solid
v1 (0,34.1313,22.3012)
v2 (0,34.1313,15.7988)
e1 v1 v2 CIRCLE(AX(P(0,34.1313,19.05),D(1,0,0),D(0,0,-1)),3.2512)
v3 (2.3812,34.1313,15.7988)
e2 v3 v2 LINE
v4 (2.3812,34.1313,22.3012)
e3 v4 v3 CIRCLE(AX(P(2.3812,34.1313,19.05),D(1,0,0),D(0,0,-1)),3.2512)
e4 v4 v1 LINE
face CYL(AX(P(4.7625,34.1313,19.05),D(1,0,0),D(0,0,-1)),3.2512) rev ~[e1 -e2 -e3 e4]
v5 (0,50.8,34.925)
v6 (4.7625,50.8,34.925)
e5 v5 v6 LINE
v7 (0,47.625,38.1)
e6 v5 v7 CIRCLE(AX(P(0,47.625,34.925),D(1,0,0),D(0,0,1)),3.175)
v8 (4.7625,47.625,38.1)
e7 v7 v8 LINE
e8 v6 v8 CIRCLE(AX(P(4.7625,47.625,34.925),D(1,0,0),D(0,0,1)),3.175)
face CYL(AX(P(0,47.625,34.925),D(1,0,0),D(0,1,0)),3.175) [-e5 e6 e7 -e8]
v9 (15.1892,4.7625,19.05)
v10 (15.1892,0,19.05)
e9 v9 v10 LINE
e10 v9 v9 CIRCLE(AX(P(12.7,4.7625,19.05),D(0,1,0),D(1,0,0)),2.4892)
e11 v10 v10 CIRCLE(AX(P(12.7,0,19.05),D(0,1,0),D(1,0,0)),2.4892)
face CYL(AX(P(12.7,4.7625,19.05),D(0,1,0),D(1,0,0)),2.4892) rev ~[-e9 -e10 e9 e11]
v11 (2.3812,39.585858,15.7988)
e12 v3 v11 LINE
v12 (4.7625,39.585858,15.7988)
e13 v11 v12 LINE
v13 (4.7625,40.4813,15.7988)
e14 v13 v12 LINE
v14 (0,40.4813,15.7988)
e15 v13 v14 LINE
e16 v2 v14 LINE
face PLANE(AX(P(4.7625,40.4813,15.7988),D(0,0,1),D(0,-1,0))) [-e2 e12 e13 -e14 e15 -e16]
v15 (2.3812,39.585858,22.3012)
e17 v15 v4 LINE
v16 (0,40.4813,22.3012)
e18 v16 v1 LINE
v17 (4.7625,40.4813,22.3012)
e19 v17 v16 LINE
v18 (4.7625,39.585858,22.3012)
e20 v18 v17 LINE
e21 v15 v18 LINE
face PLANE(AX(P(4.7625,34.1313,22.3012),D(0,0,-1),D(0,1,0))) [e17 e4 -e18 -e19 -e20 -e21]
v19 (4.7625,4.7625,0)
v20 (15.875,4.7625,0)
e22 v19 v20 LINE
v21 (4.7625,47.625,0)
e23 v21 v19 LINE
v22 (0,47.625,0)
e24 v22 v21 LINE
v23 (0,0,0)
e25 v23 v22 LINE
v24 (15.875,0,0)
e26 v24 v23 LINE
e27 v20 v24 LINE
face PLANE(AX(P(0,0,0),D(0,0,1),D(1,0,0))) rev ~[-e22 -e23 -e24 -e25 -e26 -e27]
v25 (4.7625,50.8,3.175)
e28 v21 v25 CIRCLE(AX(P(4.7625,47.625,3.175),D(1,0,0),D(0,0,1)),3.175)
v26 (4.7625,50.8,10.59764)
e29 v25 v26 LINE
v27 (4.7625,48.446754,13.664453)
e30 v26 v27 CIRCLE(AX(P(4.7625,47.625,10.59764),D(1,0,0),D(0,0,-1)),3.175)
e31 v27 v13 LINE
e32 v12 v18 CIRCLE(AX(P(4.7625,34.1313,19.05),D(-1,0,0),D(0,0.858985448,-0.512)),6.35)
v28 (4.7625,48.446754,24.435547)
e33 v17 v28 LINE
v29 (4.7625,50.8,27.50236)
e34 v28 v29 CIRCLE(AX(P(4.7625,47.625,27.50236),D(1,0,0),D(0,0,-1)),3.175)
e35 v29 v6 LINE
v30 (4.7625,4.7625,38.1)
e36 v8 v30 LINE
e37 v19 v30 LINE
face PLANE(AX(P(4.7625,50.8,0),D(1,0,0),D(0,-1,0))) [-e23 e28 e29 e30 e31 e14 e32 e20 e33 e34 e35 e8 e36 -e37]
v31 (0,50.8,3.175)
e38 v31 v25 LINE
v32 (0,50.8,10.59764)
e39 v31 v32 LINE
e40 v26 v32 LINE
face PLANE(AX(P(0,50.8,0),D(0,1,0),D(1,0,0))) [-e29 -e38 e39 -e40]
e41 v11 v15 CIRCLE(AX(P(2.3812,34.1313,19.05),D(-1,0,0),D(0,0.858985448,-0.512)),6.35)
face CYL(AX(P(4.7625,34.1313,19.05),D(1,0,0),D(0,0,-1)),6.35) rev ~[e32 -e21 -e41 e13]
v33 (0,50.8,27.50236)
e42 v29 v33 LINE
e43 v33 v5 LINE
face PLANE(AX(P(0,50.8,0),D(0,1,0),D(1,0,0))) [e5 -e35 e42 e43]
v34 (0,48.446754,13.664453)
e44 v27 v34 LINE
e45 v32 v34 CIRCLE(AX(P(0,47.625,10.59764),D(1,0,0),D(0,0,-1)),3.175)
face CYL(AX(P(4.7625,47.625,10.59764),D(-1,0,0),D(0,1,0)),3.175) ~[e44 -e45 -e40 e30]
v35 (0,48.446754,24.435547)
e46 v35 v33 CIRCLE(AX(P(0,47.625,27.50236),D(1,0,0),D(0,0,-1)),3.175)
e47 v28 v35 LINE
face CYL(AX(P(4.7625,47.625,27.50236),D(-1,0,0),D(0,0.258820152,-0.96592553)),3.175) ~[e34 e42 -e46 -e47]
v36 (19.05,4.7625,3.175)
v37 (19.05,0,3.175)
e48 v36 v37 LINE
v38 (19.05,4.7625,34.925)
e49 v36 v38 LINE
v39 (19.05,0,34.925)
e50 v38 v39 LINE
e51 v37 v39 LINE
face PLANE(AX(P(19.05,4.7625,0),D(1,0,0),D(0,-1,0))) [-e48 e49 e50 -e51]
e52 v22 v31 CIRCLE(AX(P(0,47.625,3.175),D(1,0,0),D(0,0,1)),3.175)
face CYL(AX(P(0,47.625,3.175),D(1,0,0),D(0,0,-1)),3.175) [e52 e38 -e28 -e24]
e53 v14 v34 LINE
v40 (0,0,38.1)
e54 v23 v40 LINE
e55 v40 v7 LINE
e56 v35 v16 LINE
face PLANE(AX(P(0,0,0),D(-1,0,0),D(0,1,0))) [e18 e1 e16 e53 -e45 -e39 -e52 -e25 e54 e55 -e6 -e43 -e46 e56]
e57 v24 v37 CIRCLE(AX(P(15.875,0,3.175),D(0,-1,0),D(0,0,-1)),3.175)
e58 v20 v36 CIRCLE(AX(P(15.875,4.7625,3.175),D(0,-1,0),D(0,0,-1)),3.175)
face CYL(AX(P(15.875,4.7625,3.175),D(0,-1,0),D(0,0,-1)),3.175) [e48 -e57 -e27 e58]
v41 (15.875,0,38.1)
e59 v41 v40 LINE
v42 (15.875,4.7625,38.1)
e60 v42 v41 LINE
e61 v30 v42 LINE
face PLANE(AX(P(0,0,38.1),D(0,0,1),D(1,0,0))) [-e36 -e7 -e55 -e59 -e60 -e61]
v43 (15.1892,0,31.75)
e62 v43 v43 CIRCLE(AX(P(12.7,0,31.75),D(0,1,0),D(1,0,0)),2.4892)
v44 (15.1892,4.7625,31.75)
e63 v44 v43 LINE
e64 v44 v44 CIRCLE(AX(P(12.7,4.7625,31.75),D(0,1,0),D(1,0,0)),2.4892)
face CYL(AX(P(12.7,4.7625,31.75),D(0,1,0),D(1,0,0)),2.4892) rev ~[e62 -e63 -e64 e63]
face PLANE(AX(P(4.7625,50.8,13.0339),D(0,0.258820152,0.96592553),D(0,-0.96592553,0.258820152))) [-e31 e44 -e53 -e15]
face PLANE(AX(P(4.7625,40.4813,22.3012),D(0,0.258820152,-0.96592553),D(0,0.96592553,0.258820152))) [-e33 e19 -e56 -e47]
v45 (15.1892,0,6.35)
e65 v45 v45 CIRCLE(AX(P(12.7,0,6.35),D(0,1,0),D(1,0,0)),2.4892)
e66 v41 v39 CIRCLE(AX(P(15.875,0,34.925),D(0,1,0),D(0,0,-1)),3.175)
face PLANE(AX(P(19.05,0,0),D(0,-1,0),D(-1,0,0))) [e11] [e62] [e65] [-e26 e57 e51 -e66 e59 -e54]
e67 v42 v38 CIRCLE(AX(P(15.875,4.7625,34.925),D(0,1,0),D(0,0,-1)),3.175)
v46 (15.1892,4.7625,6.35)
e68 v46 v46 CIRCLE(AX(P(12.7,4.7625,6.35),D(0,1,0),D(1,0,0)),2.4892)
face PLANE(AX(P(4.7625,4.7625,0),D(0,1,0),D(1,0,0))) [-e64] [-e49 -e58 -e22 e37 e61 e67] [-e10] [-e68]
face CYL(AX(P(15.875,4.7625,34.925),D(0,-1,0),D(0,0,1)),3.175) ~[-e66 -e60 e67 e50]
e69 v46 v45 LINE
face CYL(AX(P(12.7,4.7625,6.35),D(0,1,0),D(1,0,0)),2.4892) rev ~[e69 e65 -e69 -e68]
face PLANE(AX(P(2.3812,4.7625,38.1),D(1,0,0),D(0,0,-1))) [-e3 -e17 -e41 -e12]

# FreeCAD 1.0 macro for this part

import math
import FreeCAD as App
import Part
import Sketcher
Q = App.Units.Quantity


def edges_at(feature, points):
    """Names of the edges that pass closest to the given points."""
    edges = feature.Shape.Edges
    near = lambda p: min(range(len(edges)), key=lambda i: edges[i].distToShape(Part.Vertex(*p))[0])
    return sorted({f"Edge{near(p) + 1}" for p in points})


def add_polygon(sketch, points):
    """Adds a closed chain of lines whose ends are joined by coincident constraints."""
    first, n = sketch.GeometryCount, len(points)
    for a, b in zip(points, points[1:] + points[:1]):
        sketch.addGeometry(Part.LineSegment(App.Vector(*a, 0), App.Vector(*b, 0)), False)
    for i in range(n):
        sketch.addConstraint(Sketcher.Constraint("Coincident", first + i, 2, first + (i + 1) % n, 1))

doc = App.newDocument("Part")
body = doc.addObject("PartDesign::Body", "Body")

# Sketch on XY plane
sketch1 = body.newObject("Sketcher::SketchObject", "Sketch")
sketch1.AttachmentSupport = (doc.getObject("XY_Plane"), [""])
sketch1.MapMode = "FlatFace"
add_polygon(sketch1, [(0, 50.8), (0, 0), (19.1, 0), (19.1, 4.8), (4.8, 4.8), (4.8, 50.8)])  # lines 0-5
sketch1.addConstraint([
    Sketcher.Constraint("Vertical", 0),
    Sketcher.Constraint("Horizontal", 1),
    Sketcher.Constraint("Vertical", 2),
    Sketcher.Constraint("Horizontal", 3),
    Sketcher.Constraint("Vertical", 4),
    Sketcher.Constraint("Horizontal", 5),
    Sketcher.Constraint("Coincident", 0, 2, -1, 1),
    Sketcher.Constraint("Equal", 5, 2),
    Sketcher.Constraint("DistanceY", 0, 2, 0, 1, Q("2 in")),
    Sketcher.Constraint("DistanceX", 1, 1, 1, 2, Q("0.75 in")),
    Sketcher.Constraint("DistanceX", 5, 2, 5, 1, Q("0.1875 in")),
])
pad1 = body.newObject("PartDesign::Pad", "Pad")
pad1.Profile = sketch1
pad1.Length = Q("1.5 in")

# Sketch on YZ plane
sketch2 = body.newObject("Sketcher::SketchObject", "Sketch001")
sketch2.AttachmentSupport = (doc.getObject("YZ_Plane"), [""])
sketch2.MapMode = "FlatFace"
sketch2.AttachmentOffset = App.Placement(App.Vector(0, 0, 0.1875 * 25.4), App.Rotation())
sketch2.addGeometry([
    Part.ArcOfCircle(Part.Circle(App.Vector(34.1, 19.1, 0), App.Vector(0, 0, 1), 3.3), math.radians(90), math.radians(270)),  # 0
    Part.LineSegment(App.Vector(34.1, 15.8, 0), App.Vector(40.5, 15.8, 0)),  # 1
    Part.LineSegment(App.Vector(40.5, 15.8, 0), App.Vector(50.8, 13, 0)),  # 2
    Part.LineSegment(App.Vector(50.8, 13, 0), App.Vector(50.8, 25.1, 0)),  # 3
    Part.LineSegment(App.Vector(50.8, 25.1, 0), App.Vector(40.5, 22.3, 0)),  # 4
    Part.LineSegment(App.Vector(40.5, 22.3, 0), App.Vector(34.1, 22.3, 0)),  # 5
], False)
sketch2.addConstraint([
    Sketcher.Constraint("Tangent", 0, 2, 1, 1),
    Sketcher.Constraint("Coincident", 1, 2, 2, 1),
    Sketcher.Constraint("Coincident", 2, 2, 3, 1),
    Sketcher.Constraint("Coincident", 3, 2, 4, 1),
    Sketcher.Constraint("Coincident", 4, 2, 5, 1),
    Sketcher.Constraint("Tangent", 5, 2, 0, 1),
    Sketcher.Constraint("Horizontal", 1),
    Sketcher.Constraint("Vertical", 3),
    Sketcher.Constraint("Horizontal", 5),
    Sketcher.Constraint("Vertical", 1, 2, 4, 2),
    Sketcher.Constraint("Equal", 2, 4),
    Sketcher.Constraint("Angle", 4, Q("-165 deg")),
    Sketcher.Constraint("Radius", 0, Q("0.128 in")),
    Sketcher.Constraint("DistanceX", 1, 1, 1, 2, Q("0.25 in")),
    Sketcher.Constraint("DistanceX", -1, 1, 2, 2, Q("2 in")),
    Sketcher.Constraint("DistanceY", -1, 1, 0, 3, Q("0.75 in")),
    Sketcher.Constraint("DistanceY", 3, 1, 3, 2, Q("0.4737 in")),
])
pocket1 = body.newObject("PartDesign::Pocket", "Pocket")
pocket1.Profile = sketch2
pocket1.Length = Q("1.5 in")

# Sketch on XZ plane
sketch3 = body.newObject("Sketcher::SketchObject", "Sketch002")
sketch3.AttachmentSupport = (doc.getObject("XZ_Plane"), [""])
sketch3.MapMode = "FlatFace"
sketch3.AttachmentOffset = App.Placement(App.Vector(0, 0, -0.1875 * 25.4), App.Rotation())
sketch3.addGeometry([
    Part.Circle(App.Vector(12.7, 31.8, 0), App.Vector(0, 0, 1), 2.5),
    Part.Circle(App.Vector(12.7, 6.3, 0), App.Vector(0, 0, 1), 2.5),
    Part.Circle(App.Vector(12.7, 19.1, 0), App.Vector(0, 0, 1), 2.5),
], False)
sketch3.addConstraint([
    Sketcher.Constraint("Equal", 0, 1),
    Sketcher.Constraint("Equal", 1, 2),
    Sketcher.Constraint("Vertical", 0, 3, 1, 3),
    Sketcher.Constraint("Vertical", 1, 3, 2, 3),
    Sketcher.Constraint("Diameter", 0, Q("0.196 in")),
    Sketcher.Constraint("DistanceY", 1, 3, 0, 3, Q("1 in")),
    Sketcher.Constraint("DistanceX", -1, 1, 0, 3, Q("0.5 in")),
    Sketcher.Constraint("DistanceY", 2, 3, 0, 3, Q("0.5 in")),
    Sketcher.Constraint("DistanceY", -1, 1, 1, 3, Q("0.25 in")),
])
pocket2 = body.newObject("PartDesign::Pocket", "Pocket001")
pocket2.Profile = sketch3
pocket2.Length = Q("1.5 in")
pocket2.Reversed = True
doc.recompute()

fillet = body.newObject("PartDesign::Fillet", "Fillet")
fillet.Base = (pocket2, edges_at(pocket2, [
    (2.381, 50.8, 38.1),
    (2.381, 50.8, 25.066),
    (2.381, 50.8, 13.034),
    (2.381, 50.8, 0),
    (19.05, 2.381, 38.1),
    (19.05, 2.381, 0),
]))
fillet.Radius = Q("0.125 in")

# Sketch on YZ plane
sketch4 = body.newObject("Sketcher::SketchObject", "Sketch003")
sketch4.AttachmentSupport = (doc.getObject("YZ_Plane"), [""])
sketch4.MapMode = "FlatFace"
sketch4.AttachmentOffset = App.Placement(App.Vector(0, 0, 0.1875 * 25.4), App.Rotation())
sketch4.addGeometry(Part.Circle(App.Vector(34, 19, 0), App.Vector(0, 0, 1), 6), False)
sketch4.addConstraint([
    Sketcher.Constraint("Diameter", 0, Q("0.5 in")),
    Sketcher.Constraint("DistanceY", -1, 1, 0, 3, Q("0.75 in")),
    Sketcher.Constraint("DistanceX", -1, 1, 0, 3, Q("1.343752 in")),
])
pocket3 = body.newObject("PartDesign::Pocket", "Pocket002")
pocket3.Profile = sketch4
pocket3.Length = Q("0.093752 in")

doc.recompute()
